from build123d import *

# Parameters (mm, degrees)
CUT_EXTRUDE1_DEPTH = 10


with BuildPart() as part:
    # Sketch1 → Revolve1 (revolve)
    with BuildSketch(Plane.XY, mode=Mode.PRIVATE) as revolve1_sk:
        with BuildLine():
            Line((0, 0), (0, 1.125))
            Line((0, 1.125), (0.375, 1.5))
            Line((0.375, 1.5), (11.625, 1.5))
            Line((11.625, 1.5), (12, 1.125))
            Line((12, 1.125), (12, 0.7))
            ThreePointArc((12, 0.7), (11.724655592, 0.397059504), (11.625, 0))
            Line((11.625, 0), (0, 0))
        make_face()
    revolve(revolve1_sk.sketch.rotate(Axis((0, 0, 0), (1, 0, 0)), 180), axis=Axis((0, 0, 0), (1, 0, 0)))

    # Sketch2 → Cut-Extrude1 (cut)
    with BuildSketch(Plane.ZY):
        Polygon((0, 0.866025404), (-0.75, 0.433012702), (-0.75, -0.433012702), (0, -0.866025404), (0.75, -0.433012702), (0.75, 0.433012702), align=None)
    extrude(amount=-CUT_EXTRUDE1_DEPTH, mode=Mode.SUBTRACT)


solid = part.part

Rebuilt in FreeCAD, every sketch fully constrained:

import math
import FreeCAD as App
import Part
import Sketcher

V = App.Vector
Q = App.Units.Quantity


def add_polygon(sketch, points):
    """Adds a closed chain of lines whose ends are joined by coincident constraints."""
    first, n = sketch.GeometryCount, len(points)
    for a, b in zip(points, points[1:] + points[:1]):
        sketch.addGeometry(Part.LineSegment(App.Vector(*a, 0), App.Vector(*b, 0)), False)
    for i in range(n):
        sketch.addConstraint(Sketcher.Constraint("Coincident", first + i, 2, first + (i + 1) % n, 1))

doc = App.newDocument("Part")
body = doc.addObject("PartDesign::Body", "Body")

# Sketch on XY plane
sketch1 = doc.addObject("Sketcher::SketchObject", "Sketch")
body.addObject(sketch1)
sketch1.AttachmentSupport = (doc.XY_Plane, [""])
sketch1.MapMode = "FlatFace"
sketch1.addGeometry([
    Part.LineSegment(V(0, 1.12, 0), V(0, 0, 0)),  # 0
    Part.LineSegment(V(0, 0, 0), V(11.62, 0, 0)),  # 1
    Part.ArcOfCircle(Part.Circle(V(12.47, 0, 0), V(0, 0, 1), 0.84), math.radians(124), math.radians(180)),  # 2
    Part.LineSegment(V(12, 0.7, 0), V(12, 1.12, 0)),  # 3
    Part.LineSegment(V(12, 1.12, 0), V(11.62, 1.5, 0)),  # 4
    Part.LineSegment(V(11.62, 1.5, 0), V(0.38, 1.5, 0)),  # 5
    Part.LineSegment(V(0.38, 1.5, 0), V(0, 1.12, 0)),  # 6
], False)
sketch1.addConstraint([
    Sketcher.Constraint("Coincident", 0, 2, 1, 1),
    Sketcher.Constraint("Coincident", 1, 2, 2, 2),
    Sketcher.Constraint("Coincident", 2, 1, 3, 1),
    Sketcher.Constraint("Coincident", 3, 2, 4, 1),
    Sketcher.Constraint("Coincident", 4, 2, 5, 1),
    Sketcher.Constraint("Coincident", 5, 2, 6, 1),
    Sketcher.Constraint("Coincident", 6, 2, 0, 1),
    Sketcher.Constraint("Vertical", 0),
    Sketcher.Constraint("Horizontal", 1),
    Sketcher.Constraint("Vertical", 3),
    Sketcher.Constraint("Horizontal", 5),
    Sketcher.Constraint("Coincident", 0, 2, -1, 1),
    Sketcher.Constraint("PointOnObject", 2, 3, -1),
    Sketcher.Constraint("Perpendicular", 4, 6),
    Sketcher.Constraint("Horizontal", 3, 2, 6, 2),
    Sketcher.Constraint("Vertical", 1, 2, 4, 2),
    Sketcher.Constraint("Equal", 4, 6),
    Sketcher.Constraint("DistanceX", -1, 1, 2, 1, 12.0),
    Sketcher.Constraint("DistanceX", 5, 2, 5, 1, 11.25),
    Sketcher.Constraint("DistanceY", -1, 1, 2, 1, 0.7),
    Sketcher.Constraint("DistanceY", -1, 1, 4, 2, 1.5),
])
revolution = doc.addObject("PartDesign::Revolution", "Revolution")
body.addObject(revolution)
revolution.Profile = sketch1
revolution.ReferenceAxis = (sketch1, ["H_Axis"])
revolution.Angle = 360

# Sketch on YZ plane
sketch2 = doc.addObject("Sketcher::SketchObject", "Sketch001")
body.addObject(sketch2)
sketch2.AttachmentSupport = (doc.YZ_Plane, [""])
sketch2.MapMode = "FlatFace"
add_polygon(sketch2, [(0.9, 0), (0.4, -0.8), (-0.4, -0.8), (-0.9, 0), (-0.4, 0.8), (0.4, 0.8)])  # lines 0-5
sketch2.addConstraint([
    Sketcher.Constraint("Horizontal", 1),
    Sketcher.Constraint("Horizontal", 4),
    Sketcher.Constraint("Symmetric", 0, 2, 3, 2, -1, 1),
    Sketcher.Constraint("Symmetric", 2, 2, 5, 2, -1, 1),
    Sketcher.Constraint("PointOnObject", 2, 2, -1),
    Sketcher.Constraint("Parallel", 2, 5),
    Sketcher.Constraint("Vertical", 1, 2, 3, 2),
    Sketcher.Constraint("Angle", 0, Q("-120 deg")),
    Sketcher.Constraint("DistanceY", 1, 2, 3, 2, 1.5),
    Sketcher.Constraint("DistanceX", 1, 2, 1, 1, 0.866025),
])
pocket1 = doc.addObject("PartDesign::Pocket", "Pocket")
body.addObject(pocket1)
pocket1.Profile = sketch2
pocket1.Length = 10
pocket1.Reversed = True

doc.recompute()
